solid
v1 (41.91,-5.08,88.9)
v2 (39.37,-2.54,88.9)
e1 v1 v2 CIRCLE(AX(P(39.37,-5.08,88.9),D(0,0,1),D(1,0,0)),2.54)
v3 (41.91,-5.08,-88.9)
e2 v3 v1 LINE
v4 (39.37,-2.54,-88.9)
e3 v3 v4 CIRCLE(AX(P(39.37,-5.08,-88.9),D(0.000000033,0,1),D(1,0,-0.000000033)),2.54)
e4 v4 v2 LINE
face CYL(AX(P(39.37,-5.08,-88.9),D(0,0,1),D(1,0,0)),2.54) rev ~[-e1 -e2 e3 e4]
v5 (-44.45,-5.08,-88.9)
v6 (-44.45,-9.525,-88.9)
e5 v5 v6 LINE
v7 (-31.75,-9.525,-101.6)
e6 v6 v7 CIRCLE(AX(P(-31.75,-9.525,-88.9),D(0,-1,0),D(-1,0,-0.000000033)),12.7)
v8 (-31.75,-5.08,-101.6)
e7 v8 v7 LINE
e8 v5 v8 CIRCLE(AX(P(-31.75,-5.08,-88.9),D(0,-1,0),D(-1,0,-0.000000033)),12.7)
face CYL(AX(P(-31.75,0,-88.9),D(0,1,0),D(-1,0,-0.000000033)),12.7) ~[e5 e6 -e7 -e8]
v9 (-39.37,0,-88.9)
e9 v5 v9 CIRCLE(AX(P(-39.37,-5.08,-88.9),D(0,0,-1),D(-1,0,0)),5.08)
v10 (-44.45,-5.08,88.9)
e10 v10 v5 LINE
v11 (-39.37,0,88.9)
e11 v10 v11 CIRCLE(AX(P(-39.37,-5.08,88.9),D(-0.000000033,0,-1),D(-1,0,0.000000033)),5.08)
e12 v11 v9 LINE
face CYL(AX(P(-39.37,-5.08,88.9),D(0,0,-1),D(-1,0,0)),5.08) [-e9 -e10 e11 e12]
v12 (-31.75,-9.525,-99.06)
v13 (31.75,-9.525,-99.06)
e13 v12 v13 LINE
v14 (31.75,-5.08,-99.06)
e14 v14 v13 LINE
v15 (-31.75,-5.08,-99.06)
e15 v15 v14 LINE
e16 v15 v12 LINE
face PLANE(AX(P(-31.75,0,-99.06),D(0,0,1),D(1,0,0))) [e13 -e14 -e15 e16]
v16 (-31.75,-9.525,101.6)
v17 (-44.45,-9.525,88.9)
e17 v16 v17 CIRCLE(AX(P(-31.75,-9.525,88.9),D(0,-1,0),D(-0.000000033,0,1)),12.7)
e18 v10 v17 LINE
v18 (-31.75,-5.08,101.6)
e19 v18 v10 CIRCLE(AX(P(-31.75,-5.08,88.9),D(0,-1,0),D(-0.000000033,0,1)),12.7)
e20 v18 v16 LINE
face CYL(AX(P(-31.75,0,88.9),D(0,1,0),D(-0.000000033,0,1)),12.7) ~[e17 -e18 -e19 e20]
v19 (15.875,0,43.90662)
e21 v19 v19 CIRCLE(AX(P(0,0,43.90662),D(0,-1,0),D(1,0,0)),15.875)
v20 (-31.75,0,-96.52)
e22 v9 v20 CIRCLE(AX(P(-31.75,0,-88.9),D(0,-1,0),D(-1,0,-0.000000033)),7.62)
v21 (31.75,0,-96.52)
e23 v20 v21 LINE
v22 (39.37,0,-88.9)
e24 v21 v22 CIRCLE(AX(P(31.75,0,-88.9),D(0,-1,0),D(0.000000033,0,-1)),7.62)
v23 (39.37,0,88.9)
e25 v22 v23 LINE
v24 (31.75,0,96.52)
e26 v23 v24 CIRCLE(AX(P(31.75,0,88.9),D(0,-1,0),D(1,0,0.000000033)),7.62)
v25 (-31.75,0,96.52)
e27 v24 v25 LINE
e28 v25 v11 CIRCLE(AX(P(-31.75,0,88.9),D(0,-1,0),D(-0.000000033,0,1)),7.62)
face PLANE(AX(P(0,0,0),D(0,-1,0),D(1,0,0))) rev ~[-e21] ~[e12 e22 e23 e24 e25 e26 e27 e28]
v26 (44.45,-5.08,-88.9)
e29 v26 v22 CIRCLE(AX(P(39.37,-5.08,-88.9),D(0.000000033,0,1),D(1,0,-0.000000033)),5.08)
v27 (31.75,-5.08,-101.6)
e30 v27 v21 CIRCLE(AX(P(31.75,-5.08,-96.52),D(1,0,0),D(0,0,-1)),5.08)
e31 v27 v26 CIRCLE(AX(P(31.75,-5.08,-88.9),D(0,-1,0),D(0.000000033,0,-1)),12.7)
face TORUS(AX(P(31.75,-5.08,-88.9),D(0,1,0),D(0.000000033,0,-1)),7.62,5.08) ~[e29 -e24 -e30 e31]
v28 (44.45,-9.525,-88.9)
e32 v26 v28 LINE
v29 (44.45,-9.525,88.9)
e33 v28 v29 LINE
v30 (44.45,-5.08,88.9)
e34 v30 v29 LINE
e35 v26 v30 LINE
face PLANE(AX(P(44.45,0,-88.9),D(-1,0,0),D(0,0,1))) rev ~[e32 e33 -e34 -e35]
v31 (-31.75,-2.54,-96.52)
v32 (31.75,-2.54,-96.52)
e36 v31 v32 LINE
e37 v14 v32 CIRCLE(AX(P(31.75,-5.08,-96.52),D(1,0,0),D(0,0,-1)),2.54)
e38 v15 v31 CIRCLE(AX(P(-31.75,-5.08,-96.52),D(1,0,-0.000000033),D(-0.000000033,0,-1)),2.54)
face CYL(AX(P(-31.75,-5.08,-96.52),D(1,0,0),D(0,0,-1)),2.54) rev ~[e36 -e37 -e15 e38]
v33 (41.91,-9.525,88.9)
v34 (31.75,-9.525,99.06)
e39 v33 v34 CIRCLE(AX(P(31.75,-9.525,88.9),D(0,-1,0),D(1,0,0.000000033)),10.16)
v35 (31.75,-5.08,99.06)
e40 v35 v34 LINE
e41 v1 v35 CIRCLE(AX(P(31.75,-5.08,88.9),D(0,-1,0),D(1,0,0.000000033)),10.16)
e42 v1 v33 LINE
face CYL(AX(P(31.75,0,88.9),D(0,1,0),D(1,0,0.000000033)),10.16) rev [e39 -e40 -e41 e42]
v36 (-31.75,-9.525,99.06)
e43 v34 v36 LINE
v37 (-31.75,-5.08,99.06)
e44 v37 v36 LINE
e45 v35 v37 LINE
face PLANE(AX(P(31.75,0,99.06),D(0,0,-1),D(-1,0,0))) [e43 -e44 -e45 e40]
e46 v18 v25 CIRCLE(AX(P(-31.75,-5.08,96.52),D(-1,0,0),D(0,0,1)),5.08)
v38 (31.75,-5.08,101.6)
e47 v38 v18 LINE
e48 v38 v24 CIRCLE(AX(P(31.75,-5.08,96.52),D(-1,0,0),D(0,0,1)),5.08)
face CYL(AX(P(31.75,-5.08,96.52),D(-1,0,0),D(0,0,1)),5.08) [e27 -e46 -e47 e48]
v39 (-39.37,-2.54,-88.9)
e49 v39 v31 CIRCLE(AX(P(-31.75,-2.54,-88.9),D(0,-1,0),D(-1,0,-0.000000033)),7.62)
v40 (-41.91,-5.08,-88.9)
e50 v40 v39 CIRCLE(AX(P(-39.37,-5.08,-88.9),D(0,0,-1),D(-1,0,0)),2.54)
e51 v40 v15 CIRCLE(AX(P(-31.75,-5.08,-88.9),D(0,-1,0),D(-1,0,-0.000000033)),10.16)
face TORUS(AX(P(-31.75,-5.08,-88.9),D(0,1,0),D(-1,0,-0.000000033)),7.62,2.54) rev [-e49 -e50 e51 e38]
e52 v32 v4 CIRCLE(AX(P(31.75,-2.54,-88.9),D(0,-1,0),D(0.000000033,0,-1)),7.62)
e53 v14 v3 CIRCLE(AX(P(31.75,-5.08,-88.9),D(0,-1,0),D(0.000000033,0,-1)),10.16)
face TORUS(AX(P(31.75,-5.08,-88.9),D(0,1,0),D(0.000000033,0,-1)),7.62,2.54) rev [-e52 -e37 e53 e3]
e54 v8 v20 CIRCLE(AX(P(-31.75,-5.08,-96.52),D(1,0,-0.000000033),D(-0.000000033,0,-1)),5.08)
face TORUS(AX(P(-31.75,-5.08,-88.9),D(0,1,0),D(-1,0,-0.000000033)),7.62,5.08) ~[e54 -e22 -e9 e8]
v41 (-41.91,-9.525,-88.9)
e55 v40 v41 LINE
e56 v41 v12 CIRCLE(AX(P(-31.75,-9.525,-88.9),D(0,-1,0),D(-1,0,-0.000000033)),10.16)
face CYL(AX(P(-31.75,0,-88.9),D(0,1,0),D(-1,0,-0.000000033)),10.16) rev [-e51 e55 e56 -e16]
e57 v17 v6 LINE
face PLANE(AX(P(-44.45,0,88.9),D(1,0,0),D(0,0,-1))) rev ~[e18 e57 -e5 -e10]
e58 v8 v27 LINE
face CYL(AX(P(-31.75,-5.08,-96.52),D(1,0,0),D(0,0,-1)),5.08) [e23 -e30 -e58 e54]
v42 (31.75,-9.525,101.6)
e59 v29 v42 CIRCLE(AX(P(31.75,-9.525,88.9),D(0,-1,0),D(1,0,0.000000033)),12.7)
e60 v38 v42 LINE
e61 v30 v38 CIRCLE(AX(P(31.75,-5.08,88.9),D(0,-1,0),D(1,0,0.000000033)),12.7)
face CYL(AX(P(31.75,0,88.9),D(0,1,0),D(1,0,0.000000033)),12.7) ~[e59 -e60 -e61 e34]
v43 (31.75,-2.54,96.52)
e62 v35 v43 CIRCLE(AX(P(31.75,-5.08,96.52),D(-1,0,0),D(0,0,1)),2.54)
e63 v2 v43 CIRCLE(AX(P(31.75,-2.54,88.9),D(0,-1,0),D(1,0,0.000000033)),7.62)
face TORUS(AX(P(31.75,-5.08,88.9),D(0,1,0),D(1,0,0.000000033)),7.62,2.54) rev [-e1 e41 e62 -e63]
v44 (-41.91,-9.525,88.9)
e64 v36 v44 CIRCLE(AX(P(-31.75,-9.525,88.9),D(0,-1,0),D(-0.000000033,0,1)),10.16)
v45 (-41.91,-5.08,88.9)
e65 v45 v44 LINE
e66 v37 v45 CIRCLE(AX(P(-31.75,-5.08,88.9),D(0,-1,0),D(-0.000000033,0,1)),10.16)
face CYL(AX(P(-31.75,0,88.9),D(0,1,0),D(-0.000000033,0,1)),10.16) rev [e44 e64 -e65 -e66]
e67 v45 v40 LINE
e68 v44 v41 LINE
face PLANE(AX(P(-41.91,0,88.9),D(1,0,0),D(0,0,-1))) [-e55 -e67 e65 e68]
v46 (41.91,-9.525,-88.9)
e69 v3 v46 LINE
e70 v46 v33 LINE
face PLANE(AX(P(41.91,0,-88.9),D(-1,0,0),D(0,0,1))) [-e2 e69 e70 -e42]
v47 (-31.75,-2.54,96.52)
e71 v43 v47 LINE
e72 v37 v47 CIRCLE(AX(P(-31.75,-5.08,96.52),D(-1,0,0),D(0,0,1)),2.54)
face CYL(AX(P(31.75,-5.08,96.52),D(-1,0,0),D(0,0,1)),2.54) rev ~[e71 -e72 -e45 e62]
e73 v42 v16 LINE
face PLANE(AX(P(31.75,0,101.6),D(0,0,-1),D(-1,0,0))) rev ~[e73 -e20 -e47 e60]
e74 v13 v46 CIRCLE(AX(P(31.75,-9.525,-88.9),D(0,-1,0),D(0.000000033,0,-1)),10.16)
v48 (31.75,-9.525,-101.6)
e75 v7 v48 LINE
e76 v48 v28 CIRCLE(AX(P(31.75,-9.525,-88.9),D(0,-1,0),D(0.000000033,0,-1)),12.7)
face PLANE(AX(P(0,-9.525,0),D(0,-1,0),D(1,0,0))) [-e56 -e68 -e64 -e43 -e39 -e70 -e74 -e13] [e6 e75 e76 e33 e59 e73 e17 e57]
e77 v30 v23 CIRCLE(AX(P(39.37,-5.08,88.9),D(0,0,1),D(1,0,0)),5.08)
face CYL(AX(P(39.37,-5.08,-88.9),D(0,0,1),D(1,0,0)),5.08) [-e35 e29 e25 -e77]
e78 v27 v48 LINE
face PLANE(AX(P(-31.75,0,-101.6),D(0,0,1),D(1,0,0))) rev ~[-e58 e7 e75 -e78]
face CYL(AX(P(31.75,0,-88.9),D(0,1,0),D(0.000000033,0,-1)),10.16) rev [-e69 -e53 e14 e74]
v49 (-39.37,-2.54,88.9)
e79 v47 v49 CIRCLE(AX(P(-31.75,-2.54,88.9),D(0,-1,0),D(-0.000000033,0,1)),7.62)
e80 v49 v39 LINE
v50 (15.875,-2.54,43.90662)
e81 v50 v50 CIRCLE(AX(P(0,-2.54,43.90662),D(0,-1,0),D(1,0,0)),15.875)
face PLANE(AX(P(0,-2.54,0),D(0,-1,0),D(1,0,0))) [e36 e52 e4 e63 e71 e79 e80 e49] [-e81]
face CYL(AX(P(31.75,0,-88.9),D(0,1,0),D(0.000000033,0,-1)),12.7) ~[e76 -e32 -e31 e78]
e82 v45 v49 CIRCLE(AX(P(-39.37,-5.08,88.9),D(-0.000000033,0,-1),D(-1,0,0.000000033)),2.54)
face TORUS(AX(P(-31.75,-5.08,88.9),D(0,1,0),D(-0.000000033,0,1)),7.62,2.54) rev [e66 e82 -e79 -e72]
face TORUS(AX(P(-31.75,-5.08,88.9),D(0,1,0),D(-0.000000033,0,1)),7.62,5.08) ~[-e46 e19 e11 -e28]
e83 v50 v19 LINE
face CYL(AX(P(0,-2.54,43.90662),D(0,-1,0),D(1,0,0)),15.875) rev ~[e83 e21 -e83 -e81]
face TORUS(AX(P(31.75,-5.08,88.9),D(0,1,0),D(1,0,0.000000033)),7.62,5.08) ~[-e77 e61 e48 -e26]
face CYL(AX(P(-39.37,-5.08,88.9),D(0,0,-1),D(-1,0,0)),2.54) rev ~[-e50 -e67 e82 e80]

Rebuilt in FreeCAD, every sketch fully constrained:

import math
import FreeCAD as App
import Part
import Sketcher

V = App.Vector
Q = App.Units.Quantity


def edges_at(feature, points):
    """Names of the edges that pass closest to the given points."""
    edges = feature.Shape.Edges
    near = lambda p: min(range(len(edges)), key=lambda i: edges[i].distToShape(Part.Vertex(*p))[0])
    return sorted({f"Edge{near(p) + 1}" for p in points})


def faces_at(feature, points):
    """Names of the faces that lie closest to the given points."""
    faces = feature.Shape.Faces
    near = lambda p: min(range(len(faces)), key=lambda i: faces[i].distToShape(Part.Vertex(*p))[0])
    return sorted({f"Face{near(p) + 1}" for p in points})

doc = App.newDocument("Part")
body = doc.addObject("PartDesign::Body", "Body")

# Sketch on XZ plane
sketch1 = body.newObject("Sketcher::SketchObject", "Sketch")
sketch1.AttachmentSupport = (doc.getObject("XZ_Plane"), [""])
sketch1.MapMode = "FlatFace"
sketch1.addGeometry([
    Part.LineSegment(V(32, 102, 0), V(-32, 102, 0)),  # 0
    Part.ArcOfCircle(Part.Circle(V(-32, 89, 0), V(0, 0, 1), 13), math.radians(90), math.radians(180)),  # 1
    Part.LineSegment(V(-44, 89, 0), V(-44, -89, 0)),  # 2
    Part.ArcOfCircle(Part.Circle(V(-32, -89, 0), V(0, 0, 1), 13), math.radians(-180), math.radians(-90)),  # 3
    Part.LineSegment(V(-32, -102, 0), V(32, -102, 0)),  # 4
    Part.ArcOfCircle(Part.Circle(V(32, -89, 0), V(0, 0, 1), 13), math.radians(-90), math.radians(0)),  # 5
    Part.LineSegment(V(44, -89, 0), V(44, 89, 0)),  # 6
    Part.ArcOfCircle(Part.Circle(V(32, 89, 0), V(0, 0, 1), 13), math.radians(0), math.radians(90)),  # 7
], False)
sketch1.addConstraint([
    Sketcher.Constraint("Tangent", 0, 2, 1, 1),
    Sketcher.Constraint("Tangent", 1, 2, 2, 1),
    Sketcher.Constraint("Tangent", 2, 2, 3, 1),
    Sketcher.Constraint("Tangent", 3, 2, 4, 1),
    Sketcher.Constraint("Tangent", 4, 2, 5, 1),
    Sketcher.Constraint("Tangent", 5, 2, 6, 1),
    Sketcher.Constraint("Tangent", 6, 2, 7, 1),
    Sketcher.Constraint("Tangent", 7, 2, 0, 1),
    Sketcher.Constraint("Horizontal", 0),
    Sketcher.Constraint("Vertical", 2),
    Sketcher.Constraint("Horizontal", 4),
    Sketcher.Constraint("Vertical", 6),
    Sketcher.Constraint("Equal", 1, 3),
    Sketcher.Constraint("Equal", 3, 5),
    Sketcher.Constraint("Equal", 5, 7),
    Sketcher.Constraint("Symmetric", 1, 3, 5, 3, -1, 1),
    Sketcher.Constraint("Radius", 1, Q("0.5 in")),
    Sketcher.Constraint("DistanceY", 2, 2, 2, 1, Q("7 in")),
    Sketcher.Constraint("DistanceX", 0, 2, 0, 1, Q("2.5 in")),
])
pad1 = body.newObject("PartDesign::Pad", "Pad")
pad1.Profile = sketch1
pad1.Length = Q("0.375 in")
doc.recompute()

fillet = body.newObject("PartDesign::Fillet", "Fillet")
fillet.Base = (pad1, edges_at(pad1, [
    (0, 0, 101.6),
    (-40.73, 0, 97.88),
    (-44.45, 0, 0),
    (-40.73, 0, -97.88),
    (0, 0, -101.6),
    (40.73, 0, -97.88),
    (44.45, 0, 0),
    (40.73, 0, 97.88),
]))
fillet.Radius = Q("0.2 in")
doc.recompute()

thickness = body.newObject("PartDesign::Thickness", "Thickness")
thickness.Base = (fillet, faces_at(fillet, [(0, -9.525, 0)]))
thickness.Value = Q("0.1 in")
thickness.Reversed = True
thickness.Join = "Arc"

# Sketch on XZ plane
sketch2 = body.newObject("Sketcher::SketchObject", "Sketch001")
sketch2.AttachmentSupport = (doc.getObject("XZ_Plane"), [""])
sketch2.MapMode = "FlatFace"
sketch2.AttachmentOffset = App.Placement(V(0, 0, 0.1 * 25.4), App.Rotation())
sketch2.addGeometry(Part.Circle(V(0, 44, 0), V(0, 0, 1), 16), False)
sketch2.addConstraint([
    Sketcher.Constraint("PointOnObject", 0, 3, -2),
    Sketcher.Constraint("Diameter", 0, Q("1.25 in")),
    Sketcher.Constraint("DistanceY", -1, 1, 0, 3, 43.90662),
])
pocket1 = body.newObject("PartDesign::Pocket", "Pocket")
pocket1.Profile = sketch2
pocket1.Length = Q("1 in")

doc.recompute()
